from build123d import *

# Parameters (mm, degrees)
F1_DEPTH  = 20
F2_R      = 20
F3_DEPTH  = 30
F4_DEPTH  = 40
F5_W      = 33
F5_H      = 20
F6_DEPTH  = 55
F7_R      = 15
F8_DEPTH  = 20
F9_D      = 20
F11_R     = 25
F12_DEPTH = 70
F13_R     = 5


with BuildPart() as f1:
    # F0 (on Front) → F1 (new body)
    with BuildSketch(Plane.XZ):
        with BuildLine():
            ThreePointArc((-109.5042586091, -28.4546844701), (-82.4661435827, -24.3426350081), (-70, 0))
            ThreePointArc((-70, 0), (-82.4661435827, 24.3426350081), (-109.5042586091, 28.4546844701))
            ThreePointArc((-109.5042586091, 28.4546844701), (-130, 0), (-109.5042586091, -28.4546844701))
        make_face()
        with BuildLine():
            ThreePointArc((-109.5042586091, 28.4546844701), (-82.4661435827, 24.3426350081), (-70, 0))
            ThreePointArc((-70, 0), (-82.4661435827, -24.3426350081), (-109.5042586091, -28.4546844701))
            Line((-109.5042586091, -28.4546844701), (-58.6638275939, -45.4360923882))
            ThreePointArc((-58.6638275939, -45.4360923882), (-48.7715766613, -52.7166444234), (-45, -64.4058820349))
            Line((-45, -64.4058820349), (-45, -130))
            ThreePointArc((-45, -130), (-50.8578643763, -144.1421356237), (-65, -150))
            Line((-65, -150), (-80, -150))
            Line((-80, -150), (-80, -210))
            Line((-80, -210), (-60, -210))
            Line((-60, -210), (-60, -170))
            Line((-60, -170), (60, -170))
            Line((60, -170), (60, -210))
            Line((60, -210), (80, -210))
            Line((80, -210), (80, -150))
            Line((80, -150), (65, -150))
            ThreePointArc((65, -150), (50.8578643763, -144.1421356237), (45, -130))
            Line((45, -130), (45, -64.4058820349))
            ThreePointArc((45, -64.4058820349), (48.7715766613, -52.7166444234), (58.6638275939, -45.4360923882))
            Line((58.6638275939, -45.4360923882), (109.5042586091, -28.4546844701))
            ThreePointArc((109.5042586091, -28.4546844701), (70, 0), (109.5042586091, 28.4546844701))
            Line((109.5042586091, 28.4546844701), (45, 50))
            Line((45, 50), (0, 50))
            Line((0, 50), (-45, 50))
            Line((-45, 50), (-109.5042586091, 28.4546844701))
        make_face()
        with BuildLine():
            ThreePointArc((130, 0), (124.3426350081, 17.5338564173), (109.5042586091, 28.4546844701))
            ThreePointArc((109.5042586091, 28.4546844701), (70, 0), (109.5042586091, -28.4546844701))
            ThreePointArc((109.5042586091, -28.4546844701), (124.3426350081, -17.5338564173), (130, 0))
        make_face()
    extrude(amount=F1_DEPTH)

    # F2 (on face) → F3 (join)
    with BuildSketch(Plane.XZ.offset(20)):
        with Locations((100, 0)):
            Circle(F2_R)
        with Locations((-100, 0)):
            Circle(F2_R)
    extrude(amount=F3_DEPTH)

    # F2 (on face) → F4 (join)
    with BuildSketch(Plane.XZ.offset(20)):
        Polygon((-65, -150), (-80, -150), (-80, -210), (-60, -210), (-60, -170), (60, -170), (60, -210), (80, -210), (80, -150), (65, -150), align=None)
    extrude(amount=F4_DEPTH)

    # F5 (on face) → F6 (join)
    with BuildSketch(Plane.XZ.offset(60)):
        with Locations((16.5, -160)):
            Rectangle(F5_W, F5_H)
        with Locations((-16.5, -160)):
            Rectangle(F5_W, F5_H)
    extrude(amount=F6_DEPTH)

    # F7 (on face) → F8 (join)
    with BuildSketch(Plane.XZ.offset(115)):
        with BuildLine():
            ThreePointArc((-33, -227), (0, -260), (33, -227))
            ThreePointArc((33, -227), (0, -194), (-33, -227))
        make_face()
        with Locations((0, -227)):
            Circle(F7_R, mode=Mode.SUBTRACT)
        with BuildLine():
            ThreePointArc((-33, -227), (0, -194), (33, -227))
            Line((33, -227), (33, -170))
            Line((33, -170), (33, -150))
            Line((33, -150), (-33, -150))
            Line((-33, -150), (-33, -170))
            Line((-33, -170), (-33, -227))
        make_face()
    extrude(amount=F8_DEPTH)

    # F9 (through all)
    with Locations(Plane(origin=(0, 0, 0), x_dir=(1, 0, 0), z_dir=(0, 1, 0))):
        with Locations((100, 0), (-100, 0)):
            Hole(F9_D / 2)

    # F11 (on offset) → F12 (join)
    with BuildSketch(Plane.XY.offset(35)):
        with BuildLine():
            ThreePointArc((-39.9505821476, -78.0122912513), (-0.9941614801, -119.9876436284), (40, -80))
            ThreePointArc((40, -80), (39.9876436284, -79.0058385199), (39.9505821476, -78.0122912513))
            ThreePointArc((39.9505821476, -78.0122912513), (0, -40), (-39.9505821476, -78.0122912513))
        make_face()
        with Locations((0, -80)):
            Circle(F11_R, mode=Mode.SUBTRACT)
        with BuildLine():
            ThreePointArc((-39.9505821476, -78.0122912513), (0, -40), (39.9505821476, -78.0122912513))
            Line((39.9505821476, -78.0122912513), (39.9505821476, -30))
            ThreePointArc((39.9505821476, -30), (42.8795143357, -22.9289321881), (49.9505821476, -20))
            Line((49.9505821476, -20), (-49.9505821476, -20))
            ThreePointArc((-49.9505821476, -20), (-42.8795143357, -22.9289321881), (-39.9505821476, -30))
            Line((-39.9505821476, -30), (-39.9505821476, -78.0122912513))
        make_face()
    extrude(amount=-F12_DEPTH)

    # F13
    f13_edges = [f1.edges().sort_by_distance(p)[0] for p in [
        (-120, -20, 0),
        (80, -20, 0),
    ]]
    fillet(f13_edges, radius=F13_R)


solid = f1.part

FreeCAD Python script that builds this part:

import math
import FreeCAD as App
import Part
import Sketcher

V = App.Vector
Q = App.Units.Quantity


def edges_at(feature, points):
    """Names of the edges that pass closest to the given points."""
    edges = feature.Shape.Edges
    near = lambda p: min(range(len(edges)), key=lambda i: edges[i].distToShape(Part.Vertex(*p))[0])
    return sorted({f"Edge{near(p) + 1}" for p in points})

doc = App.newDocument("Part")
body = doc.addObject("PartDesign::Body", "Body")

sketch1 = body.newObject("Sketcher::SketchObject", "Sketch")
sketch1.AttachmentSupport = (doc.getObject("XZ_Plane"), [""])
sketch1.MapMode = "FlatFace"
sketch1.addGeometry(Part.ArcOfCircle(Part.Circle(V(-100, 0, 0), V(0, 0, 1), 30), math.radians(108.470033), math.radians(251.529967)), False)
sketch1.addGeometry(Part.LineSegment(V(-109.504259, -28.454684, 0), V(-58.663828, -45.436092, 0)), False)
sketch1.addGeometry(Part.ArcOfCircle(Part.Circle(V(-65, -64.405882, 0), V(0, 0, 1), 20), math.radians(0), math.radians(71.529967)), False)
sketch1.addGeometry(Part.LineSegment(V(-45, -64.405882, 0), V(-45, -130, 0)), False)
sketch1.addGeometry(Part.ArcOfCircle(Part.Circle(V(-65, -130, 0), V(0, 0, 1), 20), math.radians(-90), math.radians(0)), False)
sketch1.addGeometry(Part.LineSegment(V(-65, -150, 0), V(-80, -150, 0)), False)
sketch1.addGeometry(Part.LineSegment(V(-80, -150, 0), V(-80, -210, 0)), False)
sketch1.addGeometry(Part.LineSegment(V(-80, -210, 0), V(-60, -210, 0)), False)
sketch1.addGeometry(Part.LineSegment(V(-60, -210, 0), V(-60, -170, 0)), False)
sketch1.addGeometry(Part.LineSegment(V(-60, -170, 0), V(60, -170, 0)), False)
sketch1.addGeometry(Part.LineSegment(V(60, -170, 0), V(60, -210, 0)), False)
sketch1.addGeometry(Part.LineSegment(V(60, -210, 0), V(80, -210, 0)), False)
sketch1.addGeometry(Part.LineSegment(V(80, -210, 0), V(80, -150, 0)), False)
sketch1.addGeometry(Part.LineSegment(V(80, -150, 0), V(65, -150, 0)), False)
sketch1.addGeometry(Part.ArcOfCircle(Part.Circle(V(65, -130, 0), V(0, 0, 1), 20), math.radians(180), math.radians(270)), False)
sketch1.addGeometry(Part.LineSegment(V(45, -130, 0), V(45, -64.405882, 0)), False)
sketch1.addGeometry(Part.ArcOfCircle(Part.Circle(V(65, -64.405882, 0), V(0, 0, 1), 20), math.radians(108.470033), math.radians(180)), False)
sketch1.addGeometry(Part.LineSegment(V(58.663828, -45.436092, 0), V(109.504259, -28.454684, 0)), False)
sketch1.addGeometry(Part.ArcOfCircle(Part.Circle(V(100, 0, 0), V(0, 0, 1), 30), math.radians(-71.529967), math.radians(0)), False)
sketch1.addGeometry(Part.ArcOfCircle(Part.Circle(V(100, 0, 0), V(0, 0, 1), 30), math.radians(0), math.radians(71.529967)), False)
sketch1.addGeometry(Part.LineSegment(V(109.504259, 28.454684, 0), V(45, 50, 0)), False)
sketch1.addGeometry(Part.LineSegment(V(45, 50, 0), V(-45, 50, 0)), False)
sketch1.addGeometry(Part.LineSegment(V(-45, 50, 0), V(-109.504259, 28.454684, 0)), False)
sketch1.addConstraint(Sketcher.Constraint("Tangent", 0, 2, 1, 1))
sketch1.addConstraint(Sketcher.Constraint("Tangent", 1, 2, 2, 2))
sketch1.addConstraint(Sketcher.Constraint("Tangent", 2, 1, 3, 1))
sketch1.addConstraint(Sketcher.Constraint("Tangent", 3, 2, 4, 2))
sketch1.addConstraint(Sketcher.Constraint("Tangent", 4, 1, 5, 1))
sketch1.addConstraint(Sketcher.Constraint("Coincident", 5, 2, 6, 1))
sketch1.addConstraint(Sketcher.Constraint("Coincident", 6, 2, 7, 1))
sketch1.addConstraint(Sketcher.Constraint("Coincident", 7, 2, 8, 1))
sketch1.addConstraint(Sketcher.Constraint("Coincident", 8, 2, 9, 1))
sketch1.addConstraint(Sketcher.Constraint("Coincident", 9, 2, 10, 1))
sketch1.addConstraint(Sketcher.Constraint("Coincident", 10, 2, 11, 1))
sketch1.addConstraint(Sketcher.Constraint("Coincident", 11, 2, 12, 1))
sketch1.addConstraint(Sketcher.Constraint("Coincident", 12, 2, 13, 1))
sketch1.addConstraint(Sketcher.Constraint("Tangent", 13, 2, 14, 2))
sketch1.addConstraint(Sketcher.Constraint("Tangent", 14, 1, 15, 1))
sketch1.addConstraint(Sketcher.Constraint("Tangent", 15, 2, 16, 2))
sketch1.addConstraint(Sketcher.Constraint("Tangent", 16, 1, 17, 1))
sketch1.addConstraint(Sketcher.Constraint("Tangent", 17, 2, 18, 1))
sketch1.addConstraint(Sketcher.Constraint("Tangent", 18, 2, 19, 1))
sketch1.addConstraint(Sketcher.Constraint("Tangent", 19, 2, 20, 1))
sketch1.addConstraint(Sketcher.Constraint("Coincident", 20, 2, 21, 1))
sketch1.addConstraint(Sketcher.Constraint("Coincident", 21, 2, 22, 1))
sketch1.addConstraint(Sketcher.Constraint("Tangent", 22, 2, 0, 1))
sketch1.addConstraint(Sketcher.Constraint("Vertical", 3))
sketch1.addConstraint(Sketcher.Constraint("Horizontal", 5))
sketch1.addConstraint(Sketcher.Constraint("Vertical", 6))
sketch1.addConstraint(Sketcher.Constraint("Horizontal", 7))
sketch1.addConstraint(Sketcher.Constraint("Vertical", 8))
sketch1.addConstraint(Sketcher.Constraint("Horizontal", 9))
sketch1.addConstraint(Sketcher.Constraint("Vertical", 10))
sketch1.addConstraint(Sketcher.Constraint("Horizontal", 11))
sketch1.addConstraint(Sketcher.Constraint("Vertical", 12))
sketch1.addConstraint(Sketcher.Constraint("Horizontal", 13))
sketch1.addConstraint(Sketcher.Constraint("Vertical", 15))
sketch1.addConstraint(Sketcher.Constraint("Horizontal", 21))
sketch1.addConstraint(Sketcher.Constraint("Equal", 2, 4))
sketch1.addConstraint(Sketcher.Constraint("Equal", 4, 14))
sketch1.addConstraint(Sketcher.Constraint("Equal", 14, 16))
sketch1.addConstraint(Sketcher.Constraint("Equal", 0, 18))
sketch1.addConstraint(Sketcher.Constraint("Equal", 18, 19))
sketch1.addConstraint(Sketcher.Constraint("Symmetric", 0, 3, 18, 3, -1, 1))
sketch1.addConstraint(Sketcher.Constraint("Symmetric", 4, 3, 14, 3, -2))
sketch1.addConstraint(Sketcher.Constraint("Symmetric", 7, 2, 10, 2, -2))
sketch1.addConstraint(Sketcher.Constraint("Symmetric", 1, 2, 16, 1, -2))
sketch1.addConstraint(Sketcher.Constraint("PointOnObject", 18, 2, -1))
sketch1.addConstraint(Sketcher.Constraint("Parallel", 1, 20))
sketch1.addConstraint(Sketcher.Constraint("Parallel", 17, 22))
sketch1.addConstraint(Sketcher.Constraint("Vertical", 15, 2, 20, 2))
sketch1.addConstraint(Sketcher.Constraint("Equal", 7, 11))
sketch1.addConstraint(Sketcher.Constraint("Radius", 0, Q("30 mm")))
sketch1.addConstraint(Sketcher.Constraint("Radius", 2, Q("20 mm")))
sketch1.addConstraint(Sketcher.Constraint("DistanceX", 5, 2, 5, 1, Q("15 mm")))
sketch1.addConstraint(Sketcher.Constraint("DistanceX", 7, 1, 7, 2, Q("20 mm")))
sketch1.addConstraint(Sketcher.Constraint("DistanceX", 9, 1, 9, 2, Q("120 mm")))
sketch1.addConstraint(Sketcher.Constraint("DistanceY", 6, 2, 6, 1, Q("60 mm")))
sketch1.addConstraint(Sketcher.Constraint("DistanceY", 8, 1, 8, 2, Q("40 mm")))
sketch1.addConstraint(Sketcher.Constraint("DistanceX", 0, 3, -1, 1, Q("100 mm")))
sketch1.addConstraint(Sketcher.Constraint("DistanceY", 4, 3, -1, 1, Q("130 mm")))
sketch1.addConstraint(Sketcher.Constraint("DistanceY", -1, 1, 20, 2, Q("50 mm")))
pad1 = body.newObject("PartDesign::Pad", "Pad")
pad1.Profile = sketch1
pad1.Length = 20

sketch2 = body.newObject("Sketcher::SketchObject", "Sketch001")
sketch2.AttachmentSupport = (doc.getObject("XZ_Plane"), [""])
sketch2.MapMode = "FlatFace"
sketch2.AttachmentOffset = App.Placement(V(0, 0, 20), App.Rotation())
sketch2.addGeometry(Part.Circle(V(100, 0, 0), V(0, 0, 1), 20), False)
sketch2.addGeometry(Part.Circle(V(-100, 0, 0), V(0, 0, 1), 20), False)
sketch2.addConstraint(Sketcher.Constraint("Equal", 0, 1))
sketch2.addConstraint(Sketcher.Constraint("Symmetric", 0, 3, 1, 3, -1, 1))
sketch2.addConstraint(Sketcher.Constraint("PointOnObject", 0, 3, -1))
sketch2.addConstraint(Sketcher.Constraint("Diameter", 0, Q("40 mm")))
sketch2.addConstraint(Sketcher.Constraint("DistanceX", -1, 1, 0, 3, Q("100 mm")))
pad2 = body.newObject("PartDesign::Pad", "Pad001")
pad2.Profile = sketch2
pad2.Length = 30

sketch3 = body.newObject("Sketcher::SketchObject", "Sketch002")
sketch3.AttachmentSupport = (doc.getObject("XZ_Plane"), [""])
sketch3.MapMode = "FlatFace"
sketch3.AttachmentOffset = App.Placement(V(0, 0, 20), App.Rotation())
sketch3.addGeometry(Part.LineSegment(V(-80, -150, 0), V(-80, -210, 0)), False)
sketch3.addGeometry(Part.LineSegment(V(-80, -210, 0), V(-60, -210, 0)), False)
sketch3.addGeometry(Part.LineSegment(V(-60, -210, 0), V(-60, -170, 0)), False)
sketch3.addGeometry(Part.LineSegment(V(-60, -170, 0), V(60, -170, 0)), False)
sketch3.addGeometry(Part.LineSegment(V(60, -170, 0), V(60, -210, 0)), False)
sketch3.addGeometry(Part.LineSegment(V(60, -210, 0), V(80, -210, 0)), False)
sketch3.addGeometry(Part.LineSegment(V(80, -210, 0), V(80, -150, 0)), False)
sketch3.addGeometry(Part.LineSegment(V(80, -150, 0), V(-80, -150, 0)), False)
sketch3.addConstraint(Sketcher.Constraint("Coincident", 0, 2, 1, 1))
sketch3.addConstraint(Sketcher.Constraint("Coincident", 1, 2, 2, 1))
sketch3.addConstraint(Sketcher.Constraint("Coincident", 2, 2, 3, 1))
sketch3.addConstraint(Sketcher.Constraint("Coincident", 3, 2, 4, 1))
sketch3.addConstraint(Sketcher.Constraint("Coincident", 4, 2, 5, 1))
sketch3.addConstraint(Sketcher.Constraint("Coincident", 5, 2, 6, 1))
sketch3.addConstraint(Sketcher.Constraint("Coincident", 6, 2, 7, 1))
sketch3.addConstraint(Sketcher.Constraint("Coincident", 7, 2, 0, 1))
sketch3.addConstraint(Sketcher.Constraint("Vertical", 0))
sketch3.addConstraint(Sketcher.Constraint("Horizontal", 1))
sketch3.addConstraint(Sketcher.Constraint("Vertical", 2))
sketch3.addConstraint(Sketcher.Constraint("Horizontal", 3))
sketch3.addConstraint(Sketcher.Constraint("Vertical", 4))
sketch3.addConstraint(Sketcher.Constraint("Horizontal", 5))
sketch3.addConstraint(Sketcher.Constraint("Vertical", 6))
sketch3.addConstraint(Sketcher.Constraint("Horizontal", 7))
sketch3.addConstraint(Sketcher.Constraint("Symmetric", 1, 2, 4, 2, -2))
sketch3.addConstraint(Sketcher.Constraint("Equal", 1, 5))
sketch3.addConstraint(Sketcher.Constraint("DistanceX", 1, 1, 1, 2, Q("20 mm")))
sketch3.addConstraint(Sketcher.Constraint("DistanceX", 3, 1, 3, 2, Q("120 mm")))
sketch3.addConstraint(Sketcher.Constraint("DistanceY", 0, 2, 0, 1, Q("60 mm")))
sketch3.addConstraint(Sketcher.Constraint("DistanceY", 2, 1, 2, 2, Q("40 mm")))
sketch3.addConstraint(Sketcher.Constraint("DistanceY", 0, 2, -1, 1, Q("210 mm")))
pad3 = body.newObject("PartDesign::Pad", "Pad002")
pad3.Profile = sketch3
pad3.Length = 40

sketch4 = body.newObject("Sketcher::SketchObject", "Sketch003")
sketch4.AttachmentSupport = (doc.getObject("XZ_Plane"), [""])
sketch4.MapMode = "FlatFace"
sketch4.AttachmentOffset = App.Placement(V(0, 0, 60), App.Rotation())
sketch4.addGeometry(Part.LineSegment(V(33, -170, 0), V(33, -150, 0)), False)
sketch4.addGeometry(Part.LineSegment(V(33, -150, 0), V(-33, -150, 0)), False)
sketch4.addGeometry(Part.LineSegment(V(-33, -150, 0), V(-33, -170, 0)), False)
sketch4.addGeometry(Part.LineSegment(V(-33, -170, 0), V(33, -170, 0)), False)
sketch4.addConstraint(Sketcher.Constraint("Coincident", 0, 2, 1, 1))
sketch4.addConstraint(Sketcher.Constraint("Coincident", 1, 2, 2, 1))
sketch4.addConstraint(Sketcher.Constraint("Coincident", 2, 2, 3, 1))
sketch4.addConstraint(Sketcher.Constraint("Coincident", 3, 2, 0, 1))
sketch4.addConstraint(Sketcher.Constraint("Vertical", 0))
sketch4.addConstraint(Sketcher.Constraint("Horizontal", 1))
sketch4.addConstraint(Sketcher.Constraint("Vertical", 2))
sketch4.addConstraint(Sketcher.Constraint("Horizontal", 3))
sketch4.addConstraint(Sketcher.Constraint("DistanceX", 1, 2, 1, 1, Q("66 mm")))
sketch4.addConstraint(Sketcher.Constraint("DistanceY", 0, 1, 0, 2, Q("20 mm")))
sketch4.addConstraint(Sketcher.Constraint("DistanceX", -1, 1, 0, 2, Q("33 mm")))
sketch4.addConstraint(Sketcher.Constraint("DistanceY", 0, 2, -1, 1, Q("150 mm")))
pad4 = body.newObject("PartDesign::Pad", "Pad003")
pad4.Profile = sketch4
pad4.Length = 55

sketch5 = body.newObject("Sketcher::SketchObject", "Sketch004")
sketch5.AttachmentSupport = (doc.getObject("XZ_Plane"), [""])
sketch5.MapMode = "FlatFace"
sketch5.AttachmentOffset = App.Placement(V(0, 0, 115), App.Rotation())
sketch5.addGeometry(Part.ArcOfCircle(Part.Circle(V(0, -227, 0), V(0, 0, 1), 33), math.radians(180), math.radians(360)), False)
sketch5.addGeometry(Part.LineSegment(V(33, -227, 0), V(33, -150, 0)), False)
sketch5.addGeometry(Part.LineSegment(V(33, -150, 0), V(-33, -150, 0)), False)
sketch5.addGeometry(Part.LineSegment(V(-33, -150, 0), V(-33, -227, 0)), False)
sketch5.addGeometry(Part.Circle(V(0, -227, 0), V(0, 0, 1), 15), False)
sketch5.addConstraint(Sketcher.Constraint("Tangent", 0, 2, 1, 1))
sketch5.addConstraint(Sketcher.Constraint("Coincident", 1, 2, 2, 1))
sketch5.addConstraint(Sketcher.Constraint("Coincident", 2, 2, 3, 1))
sketch5.addConstraint(Sketcher.Constraint("Tangent", 3, 2, 0, 1))
sketch5.addConstraint(Sketcher.Constraint("Vertical", 1))
sketch5.addConstraint(Sketcher.Constraint("Horizontal", 2))
sketch5.addConstraint(Sketcher.Constraint("Vertical", 3))
sketch5.addConstraint(Sketcher.Constraint("Coincident", 4, 3, 0, 3))
sketch5.addConstraint(Sketcher.Constraint("PointOnObject", 0, 3, -2))
sketch5.addConstraint(Sketcher.Constraint("Diameter", 4, Q("30 mm")))
sketch5.addConstraint(Sketcher.Constraint("Radius", 0, Q("33 mm")))
sketch5.addConstraint(Sketcher.Constraint("DistanceY", 1, 1, 1, 2, Q("77 mm")))
sketch5.addConstraint(Sketcher.Constraint("DistanceY", 0, 3, -1, 1, Q("227 mm")))
pad5 = body.newObject("PartDesign::Pad", "Pad004")
pad5.Profile = sketch5
pad5.Length = 20

sketch6 = body.newObject("Sketcher::SketchObject", "Sketch005")
sketch6.AttachmentSupport = (doc.getObject("XZ_Plane"), [""])
sketch6.MapMode = "FlatFace"
sketch6.addGeometry(Part.Circle(V(100, 0, 0), V(0, 0, 1), 10), False)
sketch6.addGeometry(Part.Circle(V(-100, 0, 0), V(0, 0, 1), 10), False)
sketch6.addConstraint(Sketcher.Constraint("Equal", 0, 1))
sketch6.addConstraint(Sketcher.Constraint("Symmetric", 0, 3, 1, 3, -1, 1))
sketch6.addConstraint(Sketcher.Constraint("PointOnObject", 0, 3, -1))
sketch6.addConstraint(Sketcher.Constraint("Diameter", 0, Q("20 mm")))
sketch6.addConstraint(Sketcher.Constraint("DistanceX", -1, 1, 0, 3, Q("100 mm")))
doc.recompute()
hole = body.newObject("PartDesign::Hole", "Hole")
hole.Profile = sketch6
hole.ThreadType = "None"
hole.Diameter = 20
hole.DepthType = "ThroughAll"
hole.Reversed = True

sketch7 = body.newObject("Sketcher::SketchObject", "Sketch006")
sketch7.AttachmentSupport = (doc.getObject("XY_Plane"), [""])
sketch7.MapMode = "FlatFace"
sketch7.AttachmentOffset = App.Placement(V(0, 0, 35), App.Rotation())
sketch7.addGeometry(Part.ArcOfCircle(Part.Circle(V(0, -80, 0), V(0, 0, 1), 40), math.radians(177.151644), math.radians(362.848356)), False)
sketch7.addGeometry(Part.LineSegment(V(39.950582, -78.012291, 0), V(39.950582, -30, 0)), False)
sketch7.addGeometry(Part.ArcOfCircle(Part.Circle(V(49.950582, -30, 0), V(0, 0, 1), 10), math.radians(90), math.radians(180)), False)
sketch7.addGeometry(Part.LineSegment(V(49.950582, -20, 0), V(-49.950582, -20, 0)), False)
sketch7.addGeometry(Part.ArcOfCircle(Part.Circle(V(-49.950582, -30, 0), V(0, 0, 1), 10), math.radians(0), math.radians(90)), False)
sketch7.addGeometry(Part.LineSegment(V(-39.950582, -30, 0), V(-39.950582, -78.012291, 0)), False)
sketch7.addGeometry(Part.Circle(V(0, -80, 0), V(0, 0, 1), 25), False)
sketch7.addConstraint(Sketcher.Constraint("Coincident", 0, 2, 1, 1))
sketch7.addConstraint(Sketcher.Constraint("Tangent", 1, 2, 2, 2))
sketch7.addConstraint(Sketcher.Constraint("Tangent", 2, 1, 3, 1))
sketch7.addConstraint(Sketcher.Constraint("Tangent", 3, 2, 4, 2))
sketch7.addConstraint(Sketcher.Constraint("Tangent", 4, 1, 5, 1))
sketch7.addConstraint(Sketcher.Constraint("Coincident", 5, 2, 0, 1))
sketch7.addConstraint(Sketcher.Constraint("Vertical", 1))
sketch7.addConstraint(Sketcher.Constraint("Horizontal", 3))
sketch7.addConstraint(Sketcher.Constraint("Vertical", 5))
sketch7.addConstraint(Sketcher.Constraint("Coincident", 6, 3, 0, 3))
sketch7.addConstraint(Sketcher.Constraint("Equal", 2, 4))
sketch7.addConstraint(Sketcher.Constraint("Symmetric", 0, 2, 5, 2, -2))
sketch7.addConstraint(Sketcher.Constraint("Diameter", 6, Q("50 mm")))
sketch7.addConstraint(Sketcher.Constraint("Radius", 0, Q("40 mm")))
sketch7.addConstraint(Sketcher.Constraint("Radius", 2, Q("10 mm")))
sketch7.addConstraint(Sketcher.Constraint("DistanceY", 0, 3, -1, 1, Q("80 mm")))
sketch7.addConstraint(Sketcher.Constraint("DistanceY", 2, 3, -1, 1, Q("30 mm")))
sketch7.addConstraint(Sketcher.Constraint("DistanceY", 1, 1, 1, 2, Q("48.012291 mm")))
pad6 = body.newObject("PartDesign::Pad", "Pad005")
pad6.Profile = sketch7
pad6.Length = 70
pad6.Reversed = True
doc.recompute()

fillet = body.newObject("PartDesign::Fillet", "Fillet")
fillet.Base = (pad6, edges_at(pad6, [(-120, -20, 0), (80, -20, 0)]))
fillet.Radius = 5

doc.recompute()
